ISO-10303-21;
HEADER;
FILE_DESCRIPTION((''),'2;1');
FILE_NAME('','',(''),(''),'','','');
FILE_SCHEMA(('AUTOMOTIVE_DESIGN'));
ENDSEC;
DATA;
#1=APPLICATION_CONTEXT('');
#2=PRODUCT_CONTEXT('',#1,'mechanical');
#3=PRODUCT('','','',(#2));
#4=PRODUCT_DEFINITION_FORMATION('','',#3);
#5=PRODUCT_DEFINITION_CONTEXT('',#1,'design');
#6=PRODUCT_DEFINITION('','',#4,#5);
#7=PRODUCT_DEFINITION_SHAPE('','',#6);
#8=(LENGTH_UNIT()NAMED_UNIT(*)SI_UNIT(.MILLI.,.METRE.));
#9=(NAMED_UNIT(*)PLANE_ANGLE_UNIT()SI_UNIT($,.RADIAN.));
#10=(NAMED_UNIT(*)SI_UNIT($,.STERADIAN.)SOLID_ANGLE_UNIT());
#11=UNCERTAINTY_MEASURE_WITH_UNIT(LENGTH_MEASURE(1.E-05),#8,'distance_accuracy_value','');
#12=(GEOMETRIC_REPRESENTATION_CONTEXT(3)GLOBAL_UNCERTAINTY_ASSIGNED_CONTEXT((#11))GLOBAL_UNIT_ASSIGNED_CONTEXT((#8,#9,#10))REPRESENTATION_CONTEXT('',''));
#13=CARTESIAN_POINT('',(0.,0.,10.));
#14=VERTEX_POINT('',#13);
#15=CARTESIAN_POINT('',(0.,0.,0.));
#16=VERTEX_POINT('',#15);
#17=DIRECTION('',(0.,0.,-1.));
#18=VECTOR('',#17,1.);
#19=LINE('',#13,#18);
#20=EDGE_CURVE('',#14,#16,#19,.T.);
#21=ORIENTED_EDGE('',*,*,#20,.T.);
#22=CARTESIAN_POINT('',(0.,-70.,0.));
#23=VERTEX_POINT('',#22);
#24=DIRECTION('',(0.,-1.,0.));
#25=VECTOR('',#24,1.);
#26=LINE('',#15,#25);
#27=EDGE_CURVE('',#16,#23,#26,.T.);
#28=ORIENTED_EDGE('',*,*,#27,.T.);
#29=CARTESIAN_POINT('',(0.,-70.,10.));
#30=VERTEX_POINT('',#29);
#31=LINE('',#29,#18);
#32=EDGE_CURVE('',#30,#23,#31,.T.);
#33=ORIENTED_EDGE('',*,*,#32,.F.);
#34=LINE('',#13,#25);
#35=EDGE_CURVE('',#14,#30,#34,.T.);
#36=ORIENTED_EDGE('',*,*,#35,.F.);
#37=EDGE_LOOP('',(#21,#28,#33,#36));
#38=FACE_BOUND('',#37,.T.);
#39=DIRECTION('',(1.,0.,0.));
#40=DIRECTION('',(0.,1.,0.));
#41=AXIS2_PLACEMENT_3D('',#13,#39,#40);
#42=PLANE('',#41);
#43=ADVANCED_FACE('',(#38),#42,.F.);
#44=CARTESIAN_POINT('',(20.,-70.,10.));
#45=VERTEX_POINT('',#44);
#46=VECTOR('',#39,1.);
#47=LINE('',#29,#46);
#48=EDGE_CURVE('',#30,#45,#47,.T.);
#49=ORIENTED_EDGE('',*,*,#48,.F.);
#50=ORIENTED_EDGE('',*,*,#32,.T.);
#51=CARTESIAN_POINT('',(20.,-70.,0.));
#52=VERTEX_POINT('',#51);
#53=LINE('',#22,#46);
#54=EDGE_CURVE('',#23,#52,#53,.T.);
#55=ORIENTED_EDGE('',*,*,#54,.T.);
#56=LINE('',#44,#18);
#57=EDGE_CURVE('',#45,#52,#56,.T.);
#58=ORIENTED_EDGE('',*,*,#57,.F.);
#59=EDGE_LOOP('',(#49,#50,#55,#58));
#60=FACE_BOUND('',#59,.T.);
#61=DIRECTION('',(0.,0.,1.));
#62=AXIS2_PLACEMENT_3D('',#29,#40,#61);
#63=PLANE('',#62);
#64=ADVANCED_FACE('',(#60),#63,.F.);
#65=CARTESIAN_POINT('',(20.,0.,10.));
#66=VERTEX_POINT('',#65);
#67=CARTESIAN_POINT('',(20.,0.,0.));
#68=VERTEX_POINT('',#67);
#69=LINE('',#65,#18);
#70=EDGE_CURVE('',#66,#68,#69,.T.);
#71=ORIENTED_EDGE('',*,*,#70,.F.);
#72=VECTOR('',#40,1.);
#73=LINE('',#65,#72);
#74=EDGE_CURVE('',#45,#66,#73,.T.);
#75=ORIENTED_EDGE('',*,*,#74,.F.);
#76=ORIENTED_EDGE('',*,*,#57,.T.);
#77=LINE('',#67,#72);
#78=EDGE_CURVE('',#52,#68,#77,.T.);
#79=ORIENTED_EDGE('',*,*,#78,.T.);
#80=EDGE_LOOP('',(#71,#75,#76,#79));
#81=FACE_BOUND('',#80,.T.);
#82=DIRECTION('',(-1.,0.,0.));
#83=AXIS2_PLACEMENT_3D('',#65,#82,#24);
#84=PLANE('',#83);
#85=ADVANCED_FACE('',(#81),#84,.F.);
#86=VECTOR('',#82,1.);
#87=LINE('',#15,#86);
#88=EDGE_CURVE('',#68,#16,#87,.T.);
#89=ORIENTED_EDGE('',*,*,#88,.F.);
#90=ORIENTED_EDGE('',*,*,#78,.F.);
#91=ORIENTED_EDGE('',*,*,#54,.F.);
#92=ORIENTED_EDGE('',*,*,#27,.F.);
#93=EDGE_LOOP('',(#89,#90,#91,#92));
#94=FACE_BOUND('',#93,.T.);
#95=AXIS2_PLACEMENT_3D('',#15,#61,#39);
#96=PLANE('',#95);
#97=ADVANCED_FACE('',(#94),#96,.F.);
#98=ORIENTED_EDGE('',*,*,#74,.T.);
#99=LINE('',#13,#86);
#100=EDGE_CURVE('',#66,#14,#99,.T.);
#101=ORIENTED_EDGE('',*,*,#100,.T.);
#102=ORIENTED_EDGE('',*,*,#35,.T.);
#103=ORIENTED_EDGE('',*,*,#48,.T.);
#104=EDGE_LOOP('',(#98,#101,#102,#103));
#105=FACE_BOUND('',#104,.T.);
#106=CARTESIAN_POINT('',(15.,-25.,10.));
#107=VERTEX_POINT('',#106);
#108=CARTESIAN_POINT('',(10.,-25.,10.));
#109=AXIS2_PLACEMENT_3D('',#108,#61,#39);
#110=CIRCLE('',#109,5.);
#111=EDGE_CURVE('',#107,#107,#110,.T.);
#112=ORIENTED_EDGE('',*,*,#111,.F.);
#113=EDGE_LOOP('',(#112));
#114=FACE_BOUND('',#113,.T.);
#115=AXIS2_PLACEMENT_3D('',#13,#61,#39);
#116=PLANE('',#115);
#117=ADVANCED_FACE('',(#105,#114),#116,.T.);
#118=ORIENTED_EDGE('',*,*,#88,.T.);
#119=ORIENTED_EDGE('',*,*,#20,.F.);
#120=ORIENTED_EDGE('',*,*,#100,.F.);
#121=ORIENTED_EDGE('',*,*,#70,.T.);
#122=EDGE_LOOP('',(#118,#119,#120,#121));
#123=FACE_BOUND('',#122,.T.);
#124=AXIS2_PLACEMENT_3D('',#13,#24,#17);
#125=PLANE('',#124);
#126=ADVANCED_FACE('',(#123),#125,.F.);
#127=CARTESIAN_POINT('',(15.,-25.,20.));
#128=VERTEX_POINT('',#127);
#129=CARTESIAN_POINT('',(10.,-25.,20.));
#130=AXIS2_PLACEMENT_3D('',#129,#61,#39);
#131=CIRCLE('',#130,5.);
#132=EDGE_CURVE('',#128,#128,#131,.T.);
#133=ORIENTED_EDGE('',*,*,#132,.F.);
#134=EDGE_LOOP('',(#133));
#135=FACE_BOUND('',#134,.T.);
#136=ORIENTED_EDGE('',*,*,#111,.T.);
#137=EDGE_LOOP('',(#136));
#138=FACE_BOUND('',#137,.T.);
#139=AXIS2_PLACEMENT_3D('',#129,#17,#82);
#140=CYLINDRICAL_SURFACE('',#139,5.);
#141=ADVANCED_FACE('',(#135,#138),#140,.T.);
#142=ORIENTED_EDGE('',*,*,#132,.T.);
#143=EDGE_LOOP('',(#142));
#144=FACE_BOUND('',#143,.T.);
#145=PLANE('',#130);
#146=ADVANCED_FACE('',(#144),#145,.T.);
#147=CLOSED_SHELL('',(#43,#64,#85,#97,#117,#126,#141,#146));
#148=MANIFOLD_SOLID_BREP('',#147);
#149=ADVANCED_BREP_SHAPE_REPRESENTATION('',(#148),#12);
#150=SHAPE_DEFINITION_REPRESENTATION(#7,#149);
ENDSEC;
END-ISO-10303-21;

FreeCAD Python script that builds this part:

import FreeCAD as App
import Part
import Sketcher
from FreeCAD import Vector
Q = App.Units.Quantity


def add_polygon(sketch, points):
    """Adds a closed chain of lines whose ends are joined by coincident constraints."""
    first, n = sketch.GeometryCount, len(points)
    for a, b in zip(points, points[1:] + points[:1]):
        sketch.addGeometry(Part.LineSegment(App.Vector(*a, 0), App.Vector(*b, 0)), False)
    for i in range(n):
        sketch.addConstraint(Sketcher.Constraint("Coincident", first + i, 2, first + (i + 1) % n, 1))

doc = App.newDocument("Part")
body = doc.addObject("PartDesign::Body", "Body")

sketch1 = body.newObject("Sketcher::SketchObject", "Sketch")
sketch1.AttachmentSupport = (doc.getObject("XY_Plane"), [""])
sketch1.MapMode = "FlatFace"
add_polygon(sketch1, [(0, 0), (0, -70), (20, -70), (20, 0)])
sketch1.addConstraint([
    Sketcher.Constraint("Vertical", 0),
    Sketcher.Constraint("Horizontal", 1),
    Sketcher.Constraint("Vertical", 2),
    Sketcher.Constraint("Horizontal", 3),
    Sketcher.Constraint("Coincident", 3, 2, -1, 1),
    Sketcher.Constraint("DistanceX", 1, 1, 1, 2, Q("20 mm")),
    Sketcher.Constraint("DistanceY", 0, 2, 0, 1, Q("70 mm")),
])
pad1 = body.newObject("PartDesign::Pad", "Pad")
pad1.Profile = sketch1
pad1.Length = 10

sketch2 = body.newObject("Sketcher::SketchObject", "Sketch001")
sketch2.AttachmentSupport = (doc.getObject("XY_Plane"), [""])
sketch2.MapMode = "FlatFace"
sketch2.AttachmentOffset = App.Placement(Vector(0, 0, 10), App.Rotation())
sketch2.addGeometry(Part.Circle(Vector(10, -25, 0), Vector(0, 0, 1), 5), False)
sketch2.addConstraint([
    Sketcher.Constraint("Diameter", 0, Q("10 mm")),
    Sketcher.Constraint("DistanceX", -1, 1, 0, 3, Q("10 mm")),
    Sketcher.Constraint("DistanceY", 0, 3, -1, 1, Q("25 mm")),
])
pad2 = body.newObject("PartDesign::Pad", "Pad001")
pad2.Profile = sketch2
pad2.Length = 10

doc.recompute()
